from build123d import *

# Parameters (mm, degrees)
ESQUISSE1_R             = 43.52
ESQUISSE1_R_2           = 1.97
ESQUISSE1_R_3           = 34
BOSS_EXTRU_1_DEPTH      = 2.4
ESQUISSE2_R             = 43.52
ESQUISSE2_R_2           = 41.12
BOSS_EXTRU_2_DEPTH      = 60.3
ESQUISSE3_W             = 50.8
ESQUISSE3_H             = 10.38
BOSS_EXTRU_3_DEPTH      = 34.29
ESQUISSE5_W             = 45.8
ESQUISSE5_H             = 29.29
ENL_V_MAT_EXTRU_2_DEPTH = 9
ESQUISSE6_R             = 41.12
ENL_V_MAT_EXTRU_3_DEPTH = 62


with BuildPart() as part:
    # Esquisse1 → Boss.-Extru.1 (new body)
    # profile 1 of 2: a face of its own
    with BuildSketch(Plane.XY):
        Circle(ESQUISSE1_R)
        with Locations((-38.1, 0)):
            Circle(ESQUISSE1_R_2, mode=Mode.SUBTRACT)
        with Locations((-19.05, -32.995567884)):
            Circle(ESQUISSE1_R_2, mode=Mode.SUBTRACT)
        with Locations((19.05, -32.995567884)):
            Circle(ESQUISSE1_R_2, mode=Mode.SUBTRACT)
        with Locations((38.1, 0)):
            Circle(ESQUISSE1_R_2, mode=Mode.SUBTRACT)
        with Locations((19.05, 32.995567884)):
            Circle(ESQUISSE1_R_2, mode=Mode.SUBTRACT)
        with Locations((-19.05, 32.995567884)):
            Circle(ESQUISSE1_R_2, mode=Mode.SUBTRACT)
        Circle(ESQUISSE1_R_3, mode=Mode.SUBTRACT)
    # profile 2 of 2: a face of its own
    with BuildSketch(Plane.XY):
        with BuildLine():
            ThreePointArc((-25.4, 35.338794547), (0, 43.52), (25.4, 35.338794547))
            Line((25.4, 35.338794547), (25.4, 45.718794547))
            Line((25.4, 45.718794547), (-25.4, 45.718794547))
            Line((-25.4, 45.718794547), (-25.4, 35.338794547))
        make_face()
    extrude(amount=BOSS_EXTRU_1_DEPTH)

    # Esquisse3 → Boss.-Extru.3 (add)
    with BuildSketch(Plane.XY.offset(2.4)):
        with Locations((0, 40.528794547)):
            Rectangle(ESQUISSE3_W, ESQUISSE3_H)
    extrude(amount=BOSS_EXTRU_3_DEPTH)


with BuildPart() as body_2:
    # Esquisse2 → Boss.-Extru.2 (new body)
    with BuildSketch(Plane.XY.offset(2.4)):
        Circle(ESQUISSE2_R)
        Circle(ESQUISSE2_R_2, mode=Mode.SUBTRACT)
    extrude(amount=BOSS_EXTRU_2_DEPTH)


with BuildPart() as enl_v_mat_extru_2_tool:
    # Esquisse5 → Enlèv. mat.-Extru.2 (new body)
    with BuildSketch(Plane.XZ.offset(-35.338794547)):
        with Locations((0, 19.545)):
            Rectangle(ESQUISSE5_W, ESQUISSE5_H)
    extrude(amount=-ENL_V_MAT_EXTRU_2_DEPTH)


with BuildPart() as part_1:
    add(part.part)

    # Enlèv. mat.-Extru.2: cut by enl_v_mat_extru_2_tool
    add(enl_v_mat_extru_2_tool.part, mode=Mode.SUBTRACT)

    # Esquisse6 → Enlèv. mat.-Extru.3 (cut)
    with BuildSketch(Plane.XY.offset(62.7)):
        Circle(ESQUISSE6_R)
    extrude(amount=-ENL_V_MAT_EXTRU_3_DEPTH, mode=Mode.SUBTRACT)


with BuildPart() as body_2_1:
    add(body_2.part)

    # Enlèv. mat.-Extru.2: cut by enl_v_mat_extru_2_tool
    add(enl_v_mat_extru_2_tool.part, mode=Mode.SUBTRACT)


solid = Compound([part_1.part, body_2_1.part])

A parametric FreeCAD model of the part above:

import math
import FreeCAD as App
import Part
import Sketcher
from FreeCAD import Vector
Q = App.Units.Quantity

doc = App.newDocument("Part")
body = doc.addObject("PartDesign::Body", "Body")

sketch1 = doc.addObject("Sketcher::SketchObject", "Sketch")
body.addObject(sketch1)
sketch1.AttachmentSupport = (doc.XY_Plane, [""])
sketch1.MapMode = "FlatFace"
sketch1.addGeometry([
    Part.LineSegment(Vector(25.4, 35.3, 0), Vector(25.4, 45.7, 0)),
    Part.LineSegment(Vector(25.4, 45.7, 0), Vector(-25.4, 45.7, 0)),
    Part.LineSegment(Vector(-25.4, 45.7, 0), Vector(-25.4, 35.3, 0)),
    Part.ArcOfCircle(Part.Circle(Vector(0, 0, 0), Vector(0, 0, 1), 43.5), math.radians(126), math.radians(414)),
    Part.Circle(Vector(-19.1, -33, 0), Vector(0, 0, 1), 2),
    Part.Circle(Vector(19.1, -33, 0), Vector(0, 0, 1), 2),
    Part.Circle(Vector(-38.1, 0, 0), Vector(0, 0, 1), 2),
    Part.Circle(Vector(-19.1, 33, 0), Vector(0, 0, 1), 2),
    Part.Circle(Vector(0, 0, 0), Vector(0, 0, 1), 34),
    Part.Circle(Vector(38.1, 0, 0), Vector(0, 0, 1), 2),
    Part.Circle(Vector(19.1, 33, 0), Vector(0, 0, 1), 2),
], False)
sketch1.addConstraint([
    Sketcher.Constraint("Coincident", 0, 2, 1, 1),
    Sketcher.Constraint("Coincident", 1, 2, 2, 1),
    Sketcher.Constraint("Coincident", 2, 2, 3, 1),
    Sketcher.Constraint("Coincident", 3, 2, 0, 1),
    Sketcher.Constraint("Vertical", 0),
    Sketcher.Constraint("Horizontal", 1),
    Sketcher.Constraint("Vertical", 2),
    Sketcher.Constraint("Coincident", 3, 3, -1, 1),
    Sketcher.Constraint("Coincident", 8, 3, -1, 1),
    Sketcher.Constraint("Equal", 4, 5),
    Sketcher.Constraint("Equal", 5, 6),
    Sketcher.Constraint("Equal", 6, 7),
    Sketcher.Constraint("Equal", 7, 9),
    Sketcher.Constraint("Equal", 9, 10),
    Sketcher.Constraint("Symmetric", 5, 3, 7, 3, -1, 1),
    Sketcher.Constraint("Symmetric", 6, 3, 9, 3, -1, 1),
    Sketcher.Constraint("Symmetric", 4, 3, 10, 3, -1, 1),
    Sketcher.Constraint("Symmetric", 4, 3, 5, 3, -2),
    Sketcher.Constraint("PointOnObject", 6, 3, -1),
    Sketcher.Constraint("Horizontal", 2, 2, 3, 2),
    Sketcher.Constraint("Diameter", 8, Q("68 mm")),
    Sketcher.Constraint("Diameter", 4, Q("3.94 mm")),
    Sketcher.Constraint("Radius", 3, Q("43.52 mm")),
    Sketcher.Constraint("DistanceX", 1, 2, 1, 1, Q("50.8 mm")),
    Sketcher.Constraint("DistanceY", 0, 1, 0, 2, Q("10.38 mm")),
    Sketcher.Constraint("DistanceX", 6, 3, -1, 1, Q("38.1 mm")),
    Sketcher.Constraint("DistanceX", 4, 3, 5, 3, Q("38.1 mm")),
    Sketcher.Constraint("DistanceY", 4, 3, -1, 1, Q("32.995568 mm")),
])
pad1 = doc.addObject("PartDesign::Pad", "Pad")
body.addObject(pad1)
pad1.Profile = sketch1
pad1.Length = 2.4

sketch2 = doc.addObject("Sketcher::SketchObject", "Sketch001")
body.addObject(sketch2)
sketch2.AttachmentSupport = (doc.XY_Plane, [""])
sketch2.MapMode = "FlatFace"
sketch2.AttachmentOffset = App.Placement(Vector(0, 0, 2.4), App.Rotation())
sketch2.addGeometry([
    Part.LineSegment(Vector(-25, 46, 0), Vector(-25, 35, 0)),
    Part.LineSegment(Vector(-25, 35, 0), Vector(25, 35, 0)),
    Part.LineSegment(Vector(25, 35, 0), Vector(25, 46, 0)),
    Part.LineSegment(Vector(25, 46, 0), Vector(-25, 46, 0)),
], False)
sketch2.addConstraint([
    Sketcher.Constraint("Coincident", 0, 2, 1, 1),
    Sketcher.Constraint("Coincident", 1, 2, 2, 1),
    Sketcher.Constraint("Coincident", 2, 2, 3, 1),
    Sketcher.Constraint("Coincident", 3, 2, 0, 1),
    Sketcher.Constraint("Vertical", 0),
    Sketcher.Constraint("Horizontal", 1),
    Sketcher.Constraint("Vertical", 2),
    Sketcher.Constraint("Horizontal", 3),
    Sketcher.Constraint("DistanceX", 1, 1, 1, 2, Q("50.8 mm")),
    Sketcher.Constraint("DistanceY", 0, 2, 0, 1, Q("10.38 mm")),
    Sketcher.Constraint("DistanceX", 0, 2, -1, 1, Q("25.4 mm")),
    Sketcher.Constraint("DistanceY", -1, 1, 0, 2, Q("35.338795 mm")),
])
pad2 = doc.addObject("PartDesign::Pad", "Pad001")
body.addObject(pad2)
pad2.Profile = sketch2
pad2.Length = 34.29
body2 = doc.addObject("PartDesign::Body", "Body001")

sketch3 = doc.addObject("Sketcher::SketchObject", "Sketch002")
body2.addObject(sketch3)
sketch3.AttachmentSupport = (doc.getObject("XY_Plane001"), [""])
sketch3.MapMode = "FlatFace"
sketch3.AttachmentOffset = App.Placement(Vector(0, 0, 2.4), App.Rotation())
sketch3.addGeometry([
    Part.Circle(Vector(0, 0, 0), Vector(0, 0, 1), 44),
    Part.Circle(Vector(0, 0, 0), Vector(0, 0, 1), 41),
], False)
sketch3.addConstraint([
    Sketcher.Constraint("Coincident", 0, 3, -1, 1),
    Sketcher.Constraint("Coincident", 1, 3, -1, 1),
    Sketcher.Constraint("Diameter", 0, Q("87.04 mm")),
    Sketcher.Constraint("Diameter", 1, Q("82.24 mm")),
])
pad3 = doc.addObject("PartDesign::Pad", "Pad002")
body2.addObject(pad3)
pad3.Profile = sketch3
pad3.Length = 60.3
body3 = doc.addObject("PartDesign::Body", "Body002")

sketch4 = doc.addObject("Sketcher::SketchObject", "Sketch003")
body3.addObject(sketch4)
sketch4.AttachmentSupport = (doc.getObject("XZ_Plane002"), [""])
sketch4.MapMode = "FlatFace"
sketch4.AttachmentOffset = App.Placement(Vector(0, 0, -35.338795), App.Rotation())
sketch4.addGeometry([
    Part.LineSegment(Vector(-23, 34, 0), Vector(-23, 5, 0)),
    Part.LineSegment(Vector(-23, 5, 0), Vector(23, 5, 0)),
    Part.LineSegment(Vector(23, 5, 0), Vector(23, 34, 0)),
    Part.LineSegment(Vector(23, 34, 0), Vector(-23, 34, 0)),
], False)
sketch4.addConstraint([
    Sketcher.Constraint("Coincident", 0, 2, 1, 1),
    Sketcher.Constraint("Coincident", 1, 2, 2, 1),
    Sketcher.Constraint("Coincident", 2, 2, 3, 1),
    Sketcher.Constraint("Coincident", 3, 2, 0, 1),
    Sketcher.Constraint("Vertical", 0),
    Sketcher.Constraint("Horizontal", 1),
    Sketcher.Constraint("Vertical", 2),
    Sketcher.Constraint("Horizontal", 3),
    Sketcher.Constraint("DistanceX", 1, 1, 1, 2, Q("45.8 mm")),
    Sketcher.Constraint("DistanceY", 0, 2, 0, 1, Q("29.29 mm")),
    Sketcher.Constraint("DistanceX", 0, 2, -1, 1, Q("22.9 mm")),
    Sketcher.Constraint("DistanceY", -1, 1, 0, 2, Q("4.9 mm")),
])
pad4 = doc.addObject("PartDesign::Pad", "Pad003")
body3.addObject(pad4)
pad4.Profile = sketch4
pad4.Length = 9
pad4.Reversed = True
doc.recompute()

body4 = doc.addObject("PartDesign::Body", "Body003")
body4.BaseFeature = body3
boolean = doc.addObject("PartDesign::Boolean", "Boolean")
body.addObject(boolean)
boolean.Type = "Cut"
boolean.addObjects([body4])
doc.recompute()

sketch5 = doc.addObject("Sketcher::SketchObject", "Sketch004")
body.addObject(sketch5)
sketch5.AttachmentSupport = (doc.XY_Plane, [""])
sketch5.MapMode = "FlatFace"
sketch5.AttachmentOffset = App.Placement(Vector(0, 0, 62.7), App.Rotation())
sketch5.addGeometry(Part.Circle(Vector(0, 0, 0), Vector(0, 0, 1), 41), False)
sketch5.addConstraint([
    Sketcher.Constraint("Coincident", 0, 3, -1, 1),
    Sketcher.Constraint("Diameter", 0, Q("82.24 mm")),
])
pocket1 = doc.addObject("PartDesign::Pocket", "Pocket")
body.addObject(pocket1)
pocket1.Profile = sketch5
pocket1.Length = 62
doc.recompute()

boolean2 = doc.addObject("PartDesign::Boolean", "Boolean001")
body2.addObject(boolean2)
boolean2.Type = "Cut"
boolean2.addObjects([body3])

doc.recompute()
